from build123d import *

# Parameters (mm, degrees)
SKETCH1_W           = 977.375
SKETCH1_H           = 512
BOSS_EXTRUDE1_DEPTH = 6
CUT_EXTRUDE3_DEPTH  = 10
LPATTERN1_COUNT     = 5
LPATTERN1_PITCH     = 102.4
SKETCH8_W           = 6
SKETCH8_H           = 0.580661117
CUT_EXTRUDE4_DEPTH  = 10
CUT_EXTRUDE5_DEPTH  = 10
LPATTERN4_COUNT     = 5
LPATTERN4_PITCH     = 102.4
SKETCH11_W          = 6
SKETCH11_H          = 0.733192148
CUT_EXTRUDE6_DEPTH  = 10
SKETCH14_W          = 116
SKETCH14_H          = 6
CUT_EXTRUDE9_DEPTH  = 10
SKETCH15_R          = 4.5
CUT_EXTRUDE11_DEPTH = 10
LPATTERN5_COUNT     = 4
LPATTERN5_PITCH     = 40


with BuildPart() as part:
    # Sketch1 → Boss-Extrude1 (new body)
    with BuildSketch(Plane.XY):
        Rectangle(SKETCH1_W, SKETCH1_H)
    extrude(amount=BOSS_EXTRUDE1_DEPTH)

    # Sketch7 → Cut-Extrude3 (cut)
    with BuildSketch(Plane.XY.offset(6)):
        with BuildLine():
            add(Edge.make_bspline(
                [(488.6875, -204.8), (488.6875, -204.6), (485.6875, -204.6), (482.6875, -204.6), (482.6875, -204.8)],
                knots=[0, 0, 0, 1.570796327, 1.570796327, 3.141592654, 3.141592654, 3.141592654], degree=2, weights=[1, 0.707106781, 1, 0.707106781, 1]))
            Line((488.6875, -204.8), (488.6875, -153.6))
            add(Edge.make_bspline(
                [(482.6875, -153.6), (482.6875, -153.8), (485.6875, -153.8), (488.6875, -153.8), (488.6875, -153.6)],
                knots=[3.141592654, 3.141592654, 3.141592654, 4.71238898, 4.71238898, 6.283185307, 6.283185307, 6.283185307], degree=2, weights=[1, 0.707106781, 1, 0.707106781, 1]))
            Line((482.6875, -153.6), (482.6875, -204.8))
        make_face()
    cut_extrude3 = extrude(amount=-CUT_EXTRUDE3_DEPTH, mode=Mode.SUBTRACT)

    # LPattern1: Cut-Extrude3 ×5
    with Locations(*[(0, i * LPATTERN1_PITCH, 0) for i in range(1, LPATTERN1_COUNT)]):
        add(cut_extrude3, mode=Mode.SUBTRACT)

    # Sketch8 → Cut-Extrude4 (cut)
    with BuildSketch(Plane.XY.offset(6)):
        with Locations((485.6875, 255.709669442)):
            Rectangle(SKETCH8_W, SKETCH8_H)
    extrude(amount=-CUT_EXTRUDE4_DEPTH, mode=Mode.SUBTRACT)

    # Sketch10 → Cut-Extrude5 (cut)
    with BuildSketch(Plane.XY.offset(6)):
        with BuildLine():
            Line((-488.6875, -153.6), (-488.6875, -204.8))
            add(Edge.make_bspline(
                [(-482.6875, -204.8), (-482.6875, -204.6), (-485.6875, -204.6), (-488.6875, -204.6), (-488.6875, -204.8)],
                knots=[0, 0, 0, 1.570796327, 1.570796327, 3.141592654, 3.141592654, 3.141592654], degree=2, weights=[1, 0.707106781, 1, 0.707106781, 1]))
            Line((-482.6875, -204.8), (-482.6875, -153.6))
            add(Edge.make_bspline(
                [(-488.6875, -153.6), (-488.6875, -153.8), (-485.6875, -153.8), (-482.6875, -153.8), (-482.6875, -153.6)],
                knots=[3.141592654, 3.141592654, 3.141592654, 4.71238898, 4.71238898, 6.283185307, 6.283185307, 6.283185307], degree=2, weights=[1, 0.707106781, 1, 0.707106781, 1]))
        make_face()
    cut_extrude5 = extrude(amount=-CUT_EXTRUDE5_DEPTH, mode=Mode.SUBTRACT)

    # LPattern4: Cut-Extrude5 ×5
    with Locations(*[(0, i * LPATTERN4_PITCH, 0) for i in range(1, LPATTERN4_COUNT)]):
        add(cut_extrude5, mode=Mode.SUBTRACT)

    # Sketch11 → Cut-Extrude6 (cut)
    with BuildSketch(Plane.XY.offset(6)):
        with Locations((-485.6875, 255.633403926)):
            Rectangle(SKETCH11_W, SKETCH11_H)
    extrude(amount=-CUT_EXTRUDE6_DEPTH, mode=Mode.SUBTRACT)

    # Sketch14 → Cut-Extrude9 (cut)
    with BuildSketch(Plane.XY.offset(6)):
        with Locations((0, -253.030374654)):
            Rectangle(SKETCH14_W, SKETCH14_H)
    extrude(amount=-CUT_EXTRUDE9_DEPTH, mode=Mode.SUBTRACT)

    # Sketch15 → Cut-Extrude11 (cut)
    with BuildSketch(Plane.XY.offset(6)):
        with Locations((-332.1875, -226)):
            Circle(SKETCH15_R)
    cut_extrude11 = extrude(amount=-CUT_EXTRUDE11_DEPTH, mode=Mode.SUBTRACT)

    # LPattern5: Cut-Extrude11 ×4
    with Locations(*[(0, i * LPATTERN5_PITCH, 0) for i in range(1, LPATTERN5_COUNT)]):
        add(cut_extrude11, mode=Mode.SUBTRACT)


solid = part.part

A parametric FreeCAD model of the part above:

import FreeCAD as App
import Part
import Sketcher
Q = App.Units.Quantity


def add_polygon(sketch, points):
    """Adds a closed chain of lines whose ends are joined by coincident constraints."""
    first, n = sketch.GeometryCount, len(points)
    for a, b in zip(points, points[1:] + points[:1]):
        sketch.addGeometry(Part.LineSegment(App.Vector(*a, 0), App.Vector(*b, 0)), False)
    for i in range(n):
        sketch.addConstraint(Sketcher.Constraint("Coincident", first + i, 2, first + (i + 1) % n, 1))

doc = App.newDocument("Part")
params = doc.addObject("Spreadsheet::Sheet", "Params")
for row, (alias, value) in enumerate([
    ("sketch1_height", "512 mm"),
    ("pad1_length", "6 mm"),
    ("pocket1_length", "10 mm"),
    ("linearpattern_pitch", "102.4 mm"),
    ("sketch3_width", "6 mm"),
    ("pocket2_length", "10 mm"),
    ("pocket3_length", "10 mm"),
    ("linearpattern2_pitch", "102.4 mm"),
    ("sketch5_width", "6 mm"),
    ("pocket4_length", "10 mm"),
    ("sketch6_width", "116 mm"),
    ("sketch6_height", "6 mm"),
    ("pocket5_length", "10 mm"),
    ("sketch7_diameter", "9 mm"),
    ("pocket6_length", "10 mm"),
    ("linearpattern3_pitch", "40 mm"),
], start=1):
    params.set(f"A{row}", alias)
    params.set(f"B{row}", "=" + value)
    params.setAlias(f"B{row}", alias)

body = doc.addObject("PartDesign::Body", "Body")
body.AllowCompound = True

sketch1 = body.newObject("Sketcher::SketchObject", "Sketch")
sketch1.AttachmentSupport = (doc.getObject("XY_Plane"), [""])
sketch1.MapMode = "FlatFace"
add_polygon(sketch1, [(-488.6875, 256), (-488.6875, -256), (488.6875, -256), (488.6875, 256)])
sketch1.addConstraint([
    Sketcher.Constraint("Vertical", 0),
    Sketcher.Constraint("Horizontal", 1),
    Sketcher.Constraint("Vertical", 2),
    Sketcher.Constraint("Horizontal", 3),
    Sketcher.Constraint("Symmetric", 0, 2, 2, 2, -1, 1),
    Sketcher.Constraint("DistanceY", 0, 2, 0, 1, Q("512 mm")),
    Sketcher.Constraint("DistanceX", 1, 1, 1, 2, Q("977.375 mm")),
])
sketch1.setExpression("Constraints[9]", "Params.sketch1_height")
pad1 = body.newObject("PartDesign::Pad", "Pad")
pad1.Profile = sketch1
pad1.setExpression("Length", "Params.pad1_length")

sketch2 = body.newObject("Sketcher::SketchObject", "Sketch001")
sketch2.AttachmentSupport = (doc.getObject("XY_Plane"), [""])
sketch2.MapMode = "FlatFace"
sketch2.AttachmentOffset = App.Placement(App.Vector(0, 0, 6), App.Rotation())
sketch2.addGeometry([
    Part.BSplineCurve([App.Vector(488.6875, -204.8, 0), App.Vector(488.6875, -204.6, 0), App.Vector(485.6875, -204.6, 0), App.Vector(482.6875, -204.6, 0), App.Vector(482.6875, -204.8, 0)], [3, 2, 3], [0, 1.570796327, 3.141592654], False, 2, [1, 0.707106781, 1, 0.707106781, 1], False),
    Part.LineSegment(App.Vector(488.6875, -204.8, 0), App.Vector(488.6875, -153.6, 0)),
    Part.BSplineCurve([App.Vector(482.6875, -153.6, 0), App.Vector(482.6875, -153.8, 0), App.Vector(485.6875, -153.8, 0), App.Vector(488.6875, -153.8, 0), App.Vector(488.6875, -153.6, 0)], [3, 2, 3], [3.141592654, 4.71238898, 6.283185307], False, 2, [1, 0.707106781, 1, 0.707106781, 1], False),
    Part.LineSegment(App.Vector(482.6875, -153.6, 0), App.Vector(482.6875, -204.8, 0)),
], False)
sketch2.addConstraint([
    Sketcher.Constraint("Block", 0),
    Sketcher.Constraint("Block", 2),
    Sketcher.Constraint("Coincident", 0, 1, 1, 1),
    Sketcher.Constraint("Coincident", 1, 2, 2, 2),
    Sketcher.Constraint("Coincident", 2, 1, 3, 1),
    Sketcher.Constraint("Coincident", 3, 2, 0, 2),
])
pocket1 = body.newObject("PartDesign::Pocket", "Pocket")
pocket1.Profile = sketch2
pocket1.setExpression("Length", "Params.pocket1_length")
doc.recompute()

linearpattern = body.newObject("PartDesign::LinearPattern", "LinearPattern")
linearpattern.Originals = [pocket1]
linearpattern.Direction = (doc.getObject("Y_Axis"), [""])
linearpattern.Mode = "offset"
linearpattern.setExpression("Offset", "Params.linearpattern_pitch")
linearpattern.Occurrences = 5
body.Tip = linearpattern

sketch3 = body.newObject("Sketcher::SketchObject", "Sketch002")
sketch3.AttachmentSupport = (doc.getObject("XY_Plane"), [""])
sketch3.MapMode = "FlatFace"
sketch3.AttachmentOffset = App.Placement(App.Vector(0, 0, 6), App.Rotation())
add_polygon(sketch3, [(482.6875, 256), (482.6875, 255.419339), (488.6875, 255.419339), (488.6875, 256)])
sketch3.addConstraint([
    Sketcher.Constraint("Vertical", 0),
    Sketcher.Constraint("Horizontal", 1),
    Sketcher.Constraint("Vertical", 2),
    Sketcher.Constraint("Horizontal", 3),
    Sketcher.Constraint("DistanceX", 1, 1, 1, 2, Q("6 mm")),
    Sketcher.Constraint("DistanceY", -1, 1, 2, 2, Q("256 mm")),
    Sketcher.Constraint("DistanceY", 0, 2, 0, 1, Q("0.580661 mm")),
    Sketcher.Constraint("DistanceX", -1, 1, 0, 2, Q("482.6875 mm")),
])
sketch3.setExpression("Constraints[8]", "Params.sketch3_width")
pocket2 = body.newObject("PartDesign::Pocket", "Pocket001")
pocket2.Profile = sketch3
pocket2.setExpression("Length", "Params.pocket2_length")

sketch4 = body.newObject("Sketcher::SketchObject", "Sketch003")
sketch4.AttachmentSupport = (doc.getObject("XY_Plane"), [""])
sketch4.MapMode = "FlatFace"
sketch4.AttachmentOffset = App.Placement(App.Vector(0, 0, 6), App.Rotation())
sketch4.addGeometry([
    Part.LineSegment(App.Vector(-488.6875, -153.6, 0), App.Vector(-488.6875, -204.8, 0)),
    Part.BSplineCurve([App.Vector(-482.6875, -204.8, 0), App.Vector(-482.6875, -204.6, 0), App.Vector(-485.6875, -204.6, 0), App.Vector(-488.6875, -204.6, 0), App.Vector(-488.6875, -204.8, 0)], [3, 2, 3], [0, 1.570796327, 3.141592654], False, 2, [1, 0.707106781, 1, 0.707106781, 1], False),
    Part.LineSegment(App.Vector(-482.6875, -204.8, 0), App.Vector(-482.6875, -153.6, 0)),
    Part.BSplineCurve([App.Vector(-488.6875, -153.6, 0), App.Vector(-488.6875, -153.8, 0), App.Vector(-485.6875, -153.8, 0), App.Vector(-482.6875, -153.8, 0), App.Vector(-482.6875, -153.6, 0)], [3, 2, 3], [3.141592654, 4.71238898, 6.283185307], False, 2, [1, 0.707106781, 1, 0.707106781, 1], False),
], False)
sketch4.addConstraint([
    Sketcher.Constraint("Block", 1),
    Sketcher.Constraint("Block", 3),
    Sketcher.Constraint("Coincident", 0, 2, 1, 2),
    Sketcher.Constraint("Coincident", 1, 1, 2, 1),
    Sketcher.Constraint("Coincident", 2, 2, 3, 2),
    Sketcher.Constraint("Coincident", 3, 1, 0, 1),
])
pocket3 = body.newObject("PartDesign::Pocket", "Pocket002")
pocket3.Profile = sketch4
pocket3.setExpression("Length", "Params.pocket3_length")
doc.recompute()

linearpattern2 = body.newObject("PartDesign::LinearPattern", "LinearPattern001")
linearpattern2.Originals = [pocket3]
linearpattern2.Direction = (doc.getObject("Y_Axis"), [""])
linearpattern2.Mode = "offset"
linearpattern2.setExpression("Offset", "Params.linearpattern2_pitch")
linearpattern2.Occurrences = 5
body.Tip = linearpattern2

sketch5 = body.newObject("Sketcher::SketchObject", "Sketch004")
sketch5.AttachmentSupport = (doc.getObject("XY_Plane"), [""])
sketch5.MapMode = "FlatFace"
sketch5.AttachmentOffset = App.Placement(App.Vector(0, 0, 6), App.Rotation())
add_polygon(sketch5, [(-488.6875, 256), (-488.6875, 255.266808), (-482.6875, 255.266808), (-482.6875, 256)])
sketch5.addConstraint([
    Sketcher.Constraint("Vertical", 0),
    Sketcher.Constraint("Horizontal", 1),
    Sketcher.Constraint("Vertical", 2),
    Sketcher.Constraint("Horizontal", 3),
    Sketcher.Constraint("DistanceX", 1, 1, 1, 2, Q("6 mm")),
    Sketcher.Constraint("DistanceY", -1, 1, 2, 2, Q("256 mm")),
    Sketcher.Constraint("DistanceX", 0, 2, -1, 1, Q("488.6875 mm")),
    Sketcher.Constraint("DistanceY", 0, 2, 0, 1, Q("0.733192 mm")),
])
sketch5.setExpression("Constraints[8]", "Params.sketch5_width")
pocket4 = body.newObject("PartDesign::Pocket", "Pocket003")
pocket4.Profile = sketch5
pocket4.setExpression("Length", "Params.pocket4_length")

sketch6 = body.newObject("Sketcher::SketchObject", "Sketch005")
sketch6.AttachmentSupport = (doc.getObject("XY_Plane"), [""])
sketch6.MapMode = "FlatFace"
sketch6.AttachmentOffset = App.Placement(App.Vector(0, 0, 6), App.Rotation())
add_polygon(sketch6, [(-58, -250.030375), (-58, -256.030375), (58, -256.030375), (58, -250.030375)])
sketch6.addConstraint([
    Sketcher.Constraint("Vertical", 0),
    Sketcher.Constraint("Horizontal", 1),
    Sketcher.Constraint("Vertical", 2),
    Sketcher.Constraint("Horizontal", 3),
    Sketcher.Constraint("DistanceX", 1, 1, 1, 2, Q("116 mm")),
    Sketcher.Constraint("DistanceY", 0, 2, 0, 1, Q("6 mm")),
    Sketcher.Constraint("DistanceX", 0, 2, -1, 1, Q("58 mm")),
    Sketcher.Constraint("DistanceY", 0, 2, -1, 1, Q("256.030375 mm")),
])
sketch6.setExpression("Constraints[8]", "Params.sketch6_width")
sketch6.setExpression("Constraints[9]", "Params.sketch6_height")
pocket5 = body.newObject("PartDesign::Pocket", "Pocket004")
pocket5.Profile = sketch6
pocket5.setExpression("Length", "Params.pocket5_length")

sketch7 = body.newObject("Sketcher::SketchObject", "Sketch006")
sketch7.AttachmentSupport = (doc.getObject("XY_Plane"), [""])
sketch7.MapMode = "FlatFace"
sketch7.AttachmentOffset = App.Placement(App.Vector(0, 0, 6), App.Rotation())
sketch7.addGeometry(Part.Circle(App.Vector(-332.1875, -226, 0), App.Vector(0, 0, 1), 4.5), False)
sketch7.addConstraint([
    Sketcher.Constraint("Diameter", 0, Q("9 mm")),
    Sketcher.Constraint("DistanceY", 0, 3, -1, 1, Q("226 mm")),
    Sketcher.Constraint("DistanceX", 0, 3, -1, 1, Q("332.1875 mm")),
])
sketch7.setExpression("Constraints[0]", "Params.sketch7_diameter")
pocket6 = body.newObject("PartDesign::Pocket", "Pocket005")
pocket6.Profile = sketch7
pocket6.setExpression("Length", "Params.pocket6_length")
doc.recompute()

linearpattern3 = body.newObject("PartDesign::LinearPattern", "LinearPattern002")
linearpattern3.Originals = [pocket6]
linearpattern3.Direction = (doc.getObject("Y_Axis"), [""])
linearpattern3.Mode = "offset"
linearpattern3.setExpression("Offset", "Params.linearpattern3_pitch")
linearpattern3.Occurrences = 4
body.Tip = linearpattern3

doc.recompute()
